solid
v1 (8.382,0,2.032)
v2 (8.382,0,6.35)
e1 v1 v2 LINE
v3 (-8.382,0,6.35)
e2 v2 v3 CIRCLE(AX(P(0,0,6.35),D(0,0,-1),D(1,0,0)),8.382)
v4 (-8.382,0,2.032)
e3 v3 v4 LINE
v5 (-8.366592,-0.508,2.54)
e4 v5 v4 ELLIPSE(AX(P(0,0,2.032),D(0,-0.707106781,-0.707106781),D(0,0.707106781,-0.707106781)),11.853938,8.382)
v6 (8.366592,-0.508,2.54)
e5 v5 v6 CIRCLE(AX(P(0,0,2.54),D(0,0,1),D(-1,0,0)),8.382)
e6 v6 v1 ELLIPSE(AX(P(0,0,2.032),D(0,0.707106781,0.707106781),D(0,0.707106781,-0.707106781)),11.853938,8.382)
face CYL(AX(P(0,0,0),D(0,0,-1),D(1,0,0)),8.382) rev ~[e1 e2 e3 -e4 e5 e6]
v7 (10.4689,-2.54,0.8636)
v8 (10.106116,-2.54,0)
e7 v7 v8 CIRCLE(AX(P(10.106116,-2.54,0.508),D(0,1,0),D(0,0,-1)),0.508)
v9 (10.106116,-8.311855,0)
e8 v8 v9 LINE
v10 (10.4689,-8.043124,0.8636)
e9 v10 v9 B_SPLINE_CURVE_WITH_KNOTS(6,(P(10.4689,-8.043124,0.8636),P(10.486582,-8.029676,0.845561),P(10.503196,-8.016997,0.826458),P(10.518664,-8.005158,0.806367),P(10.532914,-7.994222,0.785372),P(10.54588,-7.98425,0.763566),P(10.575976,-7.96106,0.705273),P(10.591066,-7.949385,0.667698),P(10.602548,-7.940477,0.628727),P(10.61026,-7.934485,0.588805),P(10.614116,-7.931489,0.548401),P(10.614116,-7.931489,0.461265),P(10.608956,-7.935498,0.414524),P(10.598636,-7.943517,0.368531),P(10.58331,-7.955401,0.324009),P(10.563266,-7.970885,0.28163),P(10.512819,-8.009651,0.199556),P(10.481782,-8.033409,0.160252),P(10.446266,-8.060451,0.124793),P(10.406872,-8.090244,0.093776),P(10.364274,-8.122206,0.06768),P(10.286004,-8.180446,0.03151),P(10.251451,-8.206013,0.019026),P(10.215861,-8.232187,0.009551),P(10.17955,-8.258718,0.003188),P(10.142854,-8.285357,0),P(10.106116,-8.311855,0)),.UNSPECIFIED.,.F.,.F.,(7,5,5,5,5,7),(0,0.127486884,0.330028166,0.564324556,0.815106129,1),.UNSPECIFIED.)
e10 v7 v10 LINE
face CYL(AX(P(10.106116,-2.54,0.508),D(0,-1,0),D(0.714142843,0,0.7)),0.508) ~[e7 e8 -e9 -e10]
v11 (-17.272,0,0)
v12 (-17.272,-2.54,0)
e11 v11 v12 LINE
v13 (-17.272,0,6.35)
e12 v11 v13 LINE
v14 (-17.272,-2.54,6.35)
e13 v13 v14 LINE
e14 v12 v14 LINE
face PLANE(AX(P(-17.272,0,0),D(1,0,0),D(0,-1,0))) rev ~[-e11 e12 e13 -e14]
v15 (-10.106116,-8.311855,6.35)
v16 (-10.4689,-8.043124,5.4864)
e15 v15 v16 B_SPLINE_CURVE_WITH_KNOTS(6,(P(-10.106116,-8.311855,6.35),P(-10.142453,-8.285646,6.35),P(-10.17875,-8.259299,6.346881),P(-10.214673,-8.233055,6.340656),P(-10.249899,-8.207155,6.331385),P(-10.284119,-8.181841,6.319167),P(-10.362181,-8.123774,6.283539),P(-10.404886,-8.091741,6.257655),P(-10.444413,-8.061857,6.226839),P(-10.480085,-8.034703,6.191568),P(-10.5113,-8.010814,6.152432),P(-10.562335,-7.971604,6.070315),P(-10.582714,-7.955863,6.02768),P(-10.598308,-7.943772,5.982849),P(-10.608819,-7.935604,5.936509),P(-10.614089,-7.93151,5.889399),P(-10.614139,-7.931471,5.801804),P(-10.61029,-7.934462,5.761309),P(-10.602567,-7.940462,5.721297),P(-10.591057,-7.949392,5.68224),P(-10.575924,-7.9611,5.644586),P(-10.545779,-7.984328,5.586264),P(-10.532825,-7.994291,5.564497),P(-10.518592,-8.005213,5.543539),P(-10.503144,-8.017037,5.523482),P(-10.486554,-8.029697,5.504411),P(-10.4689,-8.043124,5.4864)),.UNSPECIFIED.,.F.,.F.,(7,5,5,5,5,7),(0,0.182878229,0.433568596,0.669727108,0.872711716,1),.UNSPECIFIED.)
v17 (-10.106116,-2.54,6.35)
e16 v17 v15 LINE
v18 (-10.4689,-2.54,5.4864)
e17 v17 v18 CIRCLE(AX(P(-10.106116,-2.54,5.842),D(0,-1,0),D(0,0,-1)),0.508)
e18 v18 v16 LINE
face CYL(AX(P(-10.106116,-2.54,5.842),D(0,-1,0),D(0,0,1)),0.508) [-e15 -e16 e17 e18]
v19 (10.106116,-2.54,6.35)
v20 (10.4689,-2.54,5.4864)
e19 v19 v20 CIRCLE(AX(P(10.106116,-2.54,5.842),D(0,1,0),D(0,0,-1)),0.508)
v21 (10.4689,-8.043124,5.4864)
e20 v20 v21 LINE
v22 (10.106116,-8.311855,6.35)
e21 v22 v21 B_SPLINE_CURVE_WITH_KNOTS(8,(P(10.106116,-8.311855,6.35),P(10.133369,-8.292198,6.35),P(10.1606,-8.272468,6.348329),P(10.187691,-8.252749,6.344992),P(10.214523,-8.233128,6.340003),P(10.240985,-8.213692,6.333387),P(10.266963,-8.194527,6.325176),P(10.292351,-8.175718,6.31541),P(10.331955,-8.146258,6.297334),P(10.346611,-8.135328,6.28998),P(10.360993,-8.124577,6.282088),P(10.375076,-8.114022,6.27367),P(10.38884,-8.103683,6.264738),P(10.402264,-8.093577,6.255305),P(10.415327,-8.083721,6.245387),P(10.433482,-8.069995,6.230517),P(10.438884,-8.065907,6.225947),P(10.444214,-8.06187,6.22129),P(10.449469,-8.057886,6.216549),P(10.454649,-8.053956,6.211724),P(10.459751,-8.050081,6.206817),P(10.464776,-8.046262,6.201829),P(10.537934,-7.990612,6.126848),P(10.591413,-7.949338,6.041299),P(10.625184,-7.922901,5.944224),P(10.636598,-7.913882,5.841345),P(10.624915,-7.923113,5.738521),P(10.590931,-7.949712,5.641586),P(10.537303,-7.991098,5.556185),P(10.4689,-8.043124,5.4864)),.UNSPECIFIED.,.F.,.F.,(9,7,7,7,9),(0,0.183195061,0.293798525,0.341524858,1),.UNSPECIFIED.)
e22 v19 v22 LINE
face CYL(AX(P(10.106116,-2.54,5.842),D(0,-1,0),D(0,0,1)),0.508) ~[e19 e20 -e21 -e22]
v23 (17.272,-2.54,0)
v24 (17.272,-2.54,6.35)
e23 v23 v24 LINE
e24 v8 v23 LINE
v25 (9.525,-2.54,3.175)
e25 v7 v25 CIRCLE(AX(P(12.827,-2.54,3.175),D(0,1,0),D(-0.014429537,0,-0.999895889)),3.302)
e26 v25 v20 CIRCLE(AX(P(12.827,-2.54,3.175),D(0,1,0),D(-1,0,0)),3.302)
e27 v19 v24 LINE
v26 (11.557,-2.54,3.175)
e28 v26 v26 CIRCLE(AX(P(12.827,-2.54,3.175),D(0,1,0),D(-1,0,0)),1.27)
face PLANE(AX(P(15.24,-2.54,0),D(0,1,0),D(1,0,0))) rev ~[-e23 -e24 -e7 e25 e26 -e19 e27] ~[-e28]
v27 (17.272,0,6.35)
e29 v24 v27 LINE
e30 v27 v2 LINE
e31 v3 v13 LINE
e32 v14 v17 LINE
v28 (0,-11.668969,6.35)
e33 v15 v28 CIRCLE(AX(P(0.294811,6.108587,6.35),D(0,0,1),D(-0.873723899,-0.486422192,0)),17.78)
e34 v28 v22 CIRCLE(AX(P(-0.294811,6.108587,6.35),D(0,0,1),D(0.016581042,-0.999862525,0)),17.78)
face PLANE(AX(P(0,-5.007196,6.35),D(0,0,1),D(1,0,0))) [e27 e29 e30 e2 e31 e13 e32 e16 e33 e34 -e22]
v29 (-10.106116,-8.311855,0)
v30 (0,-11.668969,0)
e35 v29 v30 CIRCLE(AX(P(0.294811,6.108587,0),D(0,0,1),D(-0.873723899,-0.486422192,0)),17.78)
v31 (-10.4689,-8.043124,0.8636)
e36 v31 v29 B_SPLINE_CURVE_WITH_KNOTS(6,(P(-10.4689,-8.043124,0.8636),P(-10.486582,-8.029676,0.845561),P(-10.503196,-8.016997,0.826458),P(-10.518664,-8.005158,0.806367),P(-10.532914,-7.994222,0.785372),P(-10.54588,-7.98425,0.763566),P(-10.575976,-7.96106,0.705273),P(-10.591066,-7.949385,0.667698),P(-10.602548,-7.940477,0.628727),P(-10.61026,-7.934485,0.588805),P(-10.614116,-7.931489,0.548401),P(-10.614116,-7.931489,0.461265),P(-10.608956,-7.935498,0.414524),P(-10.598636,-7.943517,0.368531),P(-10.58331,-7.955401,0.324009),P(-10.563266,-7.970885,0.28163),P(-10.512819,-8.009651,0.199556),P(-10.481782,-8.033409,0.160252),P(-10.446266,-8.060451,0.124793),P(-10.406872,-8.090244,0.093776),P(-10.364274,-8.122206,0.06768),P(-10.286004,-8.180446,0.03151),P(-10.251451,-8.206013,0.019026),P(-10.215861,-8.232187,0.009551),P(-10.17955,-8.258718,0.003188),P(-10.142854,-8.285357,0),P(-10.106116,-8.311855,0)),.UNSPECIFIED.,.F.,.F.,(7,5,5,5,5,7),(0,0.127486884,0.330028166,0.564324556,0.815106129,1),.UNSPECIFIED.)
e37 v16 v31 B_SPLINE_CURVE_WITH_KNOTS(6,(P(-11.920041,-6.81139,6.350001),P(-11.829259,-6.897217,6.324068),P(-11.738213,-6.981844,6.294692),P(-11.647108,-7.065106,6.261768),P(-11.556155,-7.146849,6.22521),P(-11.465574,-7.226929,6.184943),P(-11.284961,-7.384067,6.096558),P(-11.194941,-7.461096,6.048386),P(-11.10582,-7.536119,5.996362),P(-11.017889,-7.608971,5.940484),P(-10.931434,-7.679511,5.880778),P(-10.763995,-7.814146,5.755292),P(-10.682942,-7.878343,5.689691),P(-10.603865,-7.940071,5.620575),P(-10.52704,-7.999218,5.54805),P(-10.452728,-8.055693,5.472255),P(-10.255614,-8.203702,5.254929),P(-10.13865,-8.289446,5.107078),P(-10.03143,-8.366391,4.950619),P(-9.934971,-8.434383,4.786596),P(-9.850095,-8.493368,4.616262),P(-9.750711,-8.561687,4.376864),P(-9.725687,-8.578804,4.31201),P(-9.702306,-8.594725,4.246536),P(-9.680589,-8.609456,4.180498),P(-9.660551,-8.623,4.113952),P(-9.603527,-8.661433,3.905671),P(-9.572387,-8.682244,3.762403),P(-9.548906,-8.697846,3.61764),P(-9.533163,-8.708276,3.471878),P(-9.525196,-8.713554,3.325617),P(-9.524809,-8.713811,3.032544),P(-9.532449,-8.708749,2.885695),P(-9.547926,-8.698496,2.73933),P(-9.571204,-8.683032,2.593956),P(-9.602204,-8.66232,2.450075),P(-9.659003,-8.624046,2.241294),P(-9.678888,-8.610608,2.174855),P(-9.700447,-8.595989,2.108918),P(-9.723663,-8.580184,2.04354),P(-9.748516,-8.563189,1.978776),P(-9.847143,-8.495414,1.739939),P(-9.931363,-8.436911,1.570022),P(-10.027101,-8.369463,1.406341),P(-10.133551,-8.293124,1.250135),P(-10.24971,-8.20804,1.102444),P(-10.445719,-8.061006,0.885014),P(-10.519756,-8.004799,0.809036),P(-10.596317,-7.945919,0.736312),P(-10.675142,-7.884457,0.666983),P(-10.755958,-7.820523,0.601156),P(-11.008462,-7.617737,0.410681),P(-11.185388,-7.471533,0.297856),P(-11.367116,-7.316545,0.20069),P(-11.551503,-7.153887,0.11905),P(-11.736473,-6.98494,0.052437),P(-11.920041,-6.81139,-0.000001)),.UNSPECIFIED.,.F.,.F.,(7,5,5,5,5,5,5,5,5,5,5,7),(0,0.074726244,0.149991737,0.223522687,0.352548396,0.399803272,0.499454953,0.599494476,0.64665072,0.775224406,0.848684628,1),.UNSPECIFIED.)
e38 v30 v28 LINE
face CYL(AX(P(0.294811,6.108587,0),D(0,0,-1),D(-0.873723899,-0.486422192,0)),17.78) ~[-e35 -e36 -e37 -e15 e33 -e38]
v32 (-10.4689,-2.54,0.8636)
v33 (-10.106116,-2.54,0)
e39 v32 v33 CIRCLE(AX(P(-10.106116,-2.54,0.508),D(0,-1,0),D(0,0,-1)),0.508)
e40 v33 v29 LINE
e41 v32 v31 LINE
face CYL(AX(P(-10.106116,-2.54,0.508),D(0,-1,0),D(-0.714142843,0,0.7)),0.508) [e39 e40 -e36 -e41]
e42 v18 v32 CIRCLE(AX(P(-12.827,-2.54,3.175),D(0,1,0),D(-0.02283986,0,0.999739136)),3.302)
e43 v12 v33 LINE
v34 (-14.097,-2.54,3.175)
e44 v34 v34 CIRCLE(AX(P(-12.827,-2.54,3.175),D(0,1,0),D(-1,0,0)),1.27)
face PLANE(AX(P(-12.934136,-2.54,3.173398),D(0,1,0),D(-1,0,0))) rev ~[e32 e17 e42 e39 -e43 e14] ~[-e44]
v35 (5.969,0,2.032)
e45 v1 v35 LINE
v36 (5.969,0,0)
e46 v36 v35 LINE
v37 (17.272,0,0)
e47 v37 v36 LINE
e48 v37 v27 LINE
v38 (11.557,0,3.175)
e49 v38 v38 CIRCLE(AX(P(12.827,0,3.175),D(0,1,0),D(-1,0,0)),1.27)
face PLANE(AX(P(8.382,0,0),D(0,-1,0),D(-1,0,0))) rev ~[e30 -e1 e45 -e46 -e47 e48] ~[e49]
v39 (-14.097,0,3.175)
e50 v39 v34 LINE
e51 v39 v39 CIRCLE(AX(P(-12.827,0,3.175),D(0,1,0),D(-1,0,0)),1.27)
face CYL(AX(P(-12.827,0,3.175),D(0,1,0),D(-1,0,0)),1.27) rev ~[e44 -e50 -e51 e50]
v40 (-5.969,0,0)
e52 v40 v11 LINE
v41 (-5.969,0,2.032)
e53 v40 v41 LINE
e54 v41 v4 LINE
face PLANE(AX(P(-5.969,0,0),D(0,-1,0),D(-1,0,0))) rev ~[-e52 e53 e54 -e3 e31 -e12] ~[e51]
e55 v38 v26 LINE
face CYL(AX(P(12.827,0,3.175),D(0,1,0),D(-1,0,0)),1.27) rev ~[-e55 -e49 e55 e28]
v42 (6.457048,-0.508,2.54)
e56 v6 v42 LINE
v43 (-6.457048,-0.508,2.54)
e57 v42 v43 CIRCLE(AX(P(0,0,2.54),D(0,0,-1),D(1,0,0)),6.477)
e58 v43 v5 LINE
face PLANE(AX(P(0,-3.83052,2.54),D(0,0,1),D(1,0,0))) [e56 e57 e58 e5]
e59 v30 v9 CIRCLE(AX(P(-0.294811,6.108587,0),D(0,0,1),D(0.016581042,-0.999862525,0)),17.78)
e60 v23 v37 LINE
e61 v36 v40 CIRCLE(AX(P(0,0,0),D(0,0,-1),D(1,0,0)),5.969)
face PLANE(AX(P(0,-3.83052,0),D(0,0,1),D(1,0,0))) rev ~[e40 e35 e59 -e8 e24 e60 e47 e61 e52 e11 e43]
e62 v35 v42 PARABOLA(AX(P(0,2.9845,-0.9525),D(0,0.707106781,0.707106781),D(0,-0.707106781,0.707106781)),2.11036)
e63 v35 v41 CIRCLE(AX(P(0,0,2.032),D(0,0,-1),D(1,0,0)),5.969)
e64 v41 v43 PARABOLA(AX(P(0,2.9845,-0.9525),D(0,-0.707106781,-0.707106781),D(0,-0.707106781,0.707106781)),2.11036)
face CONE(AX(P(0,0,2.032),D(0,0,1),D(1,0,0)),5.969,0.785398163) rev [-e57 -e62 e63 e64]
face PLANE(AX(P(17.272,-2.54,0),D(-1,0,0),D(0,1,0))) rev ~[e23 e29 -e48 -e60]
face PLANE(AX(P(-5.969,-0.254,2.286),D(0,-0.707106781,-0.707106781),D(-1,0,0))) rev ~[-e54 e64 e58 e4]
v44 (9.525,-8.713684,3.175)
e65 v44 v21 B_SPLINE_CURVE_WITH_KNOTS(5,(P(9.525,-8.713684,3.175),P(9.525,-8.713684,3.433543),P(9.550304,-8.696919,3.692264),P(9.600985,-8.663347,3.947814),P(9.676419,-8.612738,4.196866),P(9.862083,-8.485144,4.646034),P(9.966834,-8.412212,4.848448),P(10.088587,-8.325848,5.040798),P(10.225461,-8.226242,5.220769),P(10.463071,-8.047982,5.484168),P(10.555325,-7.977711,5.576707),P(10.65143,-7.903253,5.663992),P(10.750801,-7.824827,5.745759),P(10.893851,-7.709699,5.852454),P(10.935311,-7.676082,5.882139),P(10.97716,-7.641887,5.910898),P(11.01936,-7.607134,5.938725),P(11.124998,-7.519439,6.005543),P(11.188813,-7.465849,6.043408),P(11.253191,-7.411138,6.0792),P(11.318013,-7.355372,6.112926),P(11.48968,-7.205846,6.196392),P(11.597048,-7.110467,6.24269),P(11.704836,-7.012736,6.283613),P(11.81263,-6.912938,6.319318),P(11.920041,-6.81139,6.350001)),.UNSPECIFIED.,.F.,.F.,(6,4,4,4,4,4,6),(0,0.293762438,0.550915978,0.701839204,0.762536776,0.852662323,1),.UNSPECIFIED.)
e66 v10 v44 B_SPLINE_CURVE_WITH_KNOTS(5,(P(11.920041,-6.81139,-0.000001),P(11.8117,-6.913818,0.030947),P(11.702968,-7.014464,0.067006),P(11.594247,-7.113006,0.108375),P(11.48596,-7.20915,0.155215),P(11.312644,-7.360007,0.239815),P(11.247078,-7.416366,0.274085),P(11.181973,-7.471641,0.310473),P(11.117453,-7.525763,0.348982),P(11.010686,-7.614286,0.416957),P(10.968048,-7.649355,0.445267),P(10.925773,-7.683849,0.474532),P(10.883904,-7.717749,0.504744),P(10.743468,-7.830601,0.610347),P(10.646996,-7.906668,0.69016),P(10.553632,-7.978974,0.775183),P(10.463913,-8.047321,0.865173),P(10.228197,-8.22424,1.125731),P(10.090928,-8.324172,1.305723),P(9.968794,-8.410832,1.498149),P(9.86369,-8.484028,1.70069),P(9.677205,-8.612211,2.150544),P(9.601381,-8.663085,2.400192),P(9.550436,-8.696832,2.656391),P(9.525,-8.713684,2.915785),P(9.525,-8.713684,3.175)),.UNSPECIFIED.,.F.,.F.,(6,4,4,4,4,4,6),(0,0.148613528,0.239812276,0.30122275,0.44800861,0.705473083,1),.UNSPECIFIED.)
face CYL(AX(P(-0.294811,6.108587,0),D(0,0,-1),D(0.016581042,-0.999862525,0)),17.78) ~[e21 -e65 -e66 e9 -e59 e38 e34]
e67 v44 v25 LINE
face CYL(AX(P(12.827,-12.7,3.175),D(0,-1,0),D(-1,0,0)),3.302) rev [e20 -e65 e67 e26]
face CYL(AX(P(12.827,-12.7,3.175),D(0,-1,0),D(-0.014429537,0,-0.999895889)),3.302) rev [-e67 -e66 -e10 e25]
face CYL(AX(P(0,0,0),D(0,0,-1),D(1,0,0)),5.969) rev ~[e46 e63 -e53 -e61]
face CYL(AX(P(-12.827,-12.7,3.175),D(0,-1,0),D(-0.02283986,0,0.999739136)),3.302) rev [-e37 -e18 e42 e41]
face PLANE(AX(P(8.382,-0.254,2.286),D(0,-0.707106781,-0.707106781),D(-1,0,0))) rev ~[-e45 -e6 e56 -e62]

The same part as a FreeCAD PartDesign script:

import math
import FreeCAD as App
import Part
import Sketcher
from FreeCAD import Vector
Q = App.Units.Quantity


def edges_at(feature, points):
    """Names of the edges that pass closest to the given points."""
    edges = feature.Shape.Edges
    near = lambda p: min(range(len(edges)), key=lambda i: edges[i].distToShape(Part.Vertex(*p))[0])
    return sorted({f"Edge{near(p) + 1}" for p in points})

doc = App.newDocument("Part")
body = doc.addObject("PartDesign::Body", "Body")

# Sketch on XY plane
sketch1 = body.newObject("Sketcher::SketchObject", "Sketch")
sketch1.AttachmentSupport = (doc.getObject("XY_Plane"), [""])
sketch1.MapMode = "FlatFace"
sketch1.addGeometry(Part.ArcOfCircle(Part.Circle(Vector(0, 0, 0), Vector(0, 0, 1), 8.4), math.radians(180), math.radians(360)), False)
sketch1.addGeometry(Part.LineSegment(Vector(-8.4, 0, 0), Vector(-17.3, 0, 0)), False)
sketch1.addGeometry(Part.LineSegment(Vector(-17.3, 0, 0), Vector(-17.3, -2.5, 0)), False)
sketch1.addGeometry(Part.LineSegment(Vector(-17.3, -2.5, 0), Vector(-15.2, -2.5, 0)), False)
sketch1.addGeometry(Part.ArcOfCircle(Part.Circle(Vector(0.3, 6.1, 0), Vector(0, 0, 1), 17.8), math.radians(-151), math.radians(-91)), False)
sketch1.addGeometry(Part.ArcOfCircle(Part.Circle(Vector(-0.3, 6.1, 0), Vector(0, 0, 1), 17.8), math.radians(-89), math.radians(-29)), False)
sketch1.addGeometry(Part.LineSegment(Vector(15.2, -2.5, 0), Vector(17.3, -2.5, 0)), False)
sketch1.addGeometry(Part.LineSegment(Vector(17.3, -2.5, 0), Vector(17.3, 0, 0)), False)
sketch1.addGeometry(Part.LineSegment(Vector(17.3, 0, 0), Vector(8.4, 0, 0)), False)
sketch1.addConstraint(Sketcher.Constraint("Coincident", 0, 1, 1, 1))
sketch1.addConstraint(Sketcher.Constraint("Coincident", 1, 2, 2, 1))
sketch1.addConstraint(Sketcher.Constraint("Coincident", 2, 2, 3, 1))
sketch1.addConstraint(Sketcher.Constraint("Coincident", 3, 2, 4, 1))
sketch1.addConstraint(Sketcher.Constraint("Coincident", 4, 2, 5, 1))
sketch1.addConstraint(Sketcher.Constraint("Coincident", 5, 2, 6, 1))
sketch1.addConstraint(Sketcher.Constraint("Coincident", 6, 2, 7, 1))
sketch1.addConstraint(Sketcher.Constraint("Coincident", 7, 2, 8, 1))
sketch1.addConstraint(Sketcher.Constraint("Coincident", 8, 2, 0, 2))
sketch1.addConstraint(Sketcher.Constraint("Horizontal", 1))
sketch1.addConstraint(Sketcher.Constraint("Vertical", 2))
sketch1.addConstraint(Sketcher.Constraint("Horizontal", 3))
sketch1.addConstraint(Sketcher.Constraint("Horizontal", 6))
sketch1.addConstraint(Sketcher.Constraint("Vertical", 7))
sketch1.addConstraint(Sketcher.Constraint("Horizontal", 8))
sketch1.addConstraint(Sketcher.Constraint("Coincident", 0, 3, -1, 1))
sketch1.addConstraint(Sketcher.Constraint("Equal", 4, 5))
sketch1.addConstraint(Sketcher.Constraint("Symmetric", 1, 2, 7, 2, -1, 1))
sketch1.addConstraint(Sketcher.Constraint("Symmetric", 4, 3, 5, 3, -2))
sketch1.addConstraint(Sketcher.Constraint("PointOnObject", 0, 1, -1))
sketch1.addConstraint(Sketcher.Constraint("Horizontal", 3, 2, 5, 2))
sketch1.addConstraint(Sketcher.Constraint("Radius", 4, Q("0.7 in")))
sketch1.addConstraint(Sketcher.Constraint("Radius", 0, Q("0.33 in")))
sketch1.addConstraint(Sketcher.Constraint("DistanceY", 2, 2, 2, 1, Q("0.1 in")))
sketch1.addConstraint(Sketcher.Constraint("DistanceX", 1, 2, 1, 1, Q("0.35 in")))
sketch1.addConstraint(Sketcher.Constraint("DistanceX", 3, 1, 3, 2, Q("0.08 in")))
sketch1.addConstraint(Sketcher.Constraint("DistanceX", -1, 1, 4, 3, Q("0.294811 mm")))
pad1 = body.newObject("PartDesign::Pad", "Pad")
pad1.Profile = sketch1
pad1.Length = Q("0.25 in")

# Sketch on XY plane
sketch2 = body.newObject("Sketcher::SketchObject", "Sketch001")
sketch2.AttachmentSupport = (doc.getObject("XY_Plane"), [""])
sketch2.MapMode = "FlatFace"
sketch2.addGeometry(Part.ArcOfCircle(Part.Circle(Vector(0, 0, 0), Vector(0, 0, 1), 6), math.radians(180), math.radians(360)), False)
sketch2.addGeometry(Part.LineSegment(Vector(-6, 0, 0), Vector(-8.4, 0, 0)), False)
sketch2.addGeometry(Part.ArcOfCircle(Part.Circle(Vector(0, 0, 0), Vector(0, 0, 1), 8.4), math.radians(180), math.radians(360)), False)
sketch2.addGeometry(Part.LineSegment(Vector(8.4, 0, 0), Vector(6, 0, 0)), False)
sketch2.addConstraint(Sketcher.Constraint("Coincident", 0, 1, 1, 1))
sketch2.addConstraint(Sketcher.Constraint("Coincident", 1, 2, 2, 1))
sketch2.addConstraint(Sketcher.Constraint("Coincident", 2, 2, 3, 1))
sketch2.addConstraint(Sketcher.Constraint("Coincident", 3, 2, 0, 2))
sketch2.addConstraint(Sketcher.Constraint("Horizontal", 1))
sketch2.addConstraint(Sketcher.Constraint("Horizontal", 3))
sketch2.addConstraint(Sketcher.Constraint("Coincident", 0, 3, -1, 1))
sketch2.addConstraint(Sketcher.Constraint("Coincident", 2, 3, -1, 1))
sketch2.addConstraint(Sketcher.Constraint("PointOnObject", 0, 1, -1))
sketch2.addConstraint(Sketcher.Constraint("PointOnObject", 2, 2, -1))
sketch2.addConstraint(Sketcher.Constraint("Radius", 2, Q("0.33 in")))
sketch2.addConstraint(Sketcher.Constraint("Radius", 0, Q("0.235 in")))
pad2 = body.newObject("PartDesign::Pad", "Pad001")
pad2.Profile = sketch2
pad2.Length = Q("0.1 in")

# Sketch on XZ plane
sketch3 = body.newObject("Sketcher::SketchObject", "Sketch002")
sketch3.AttachmentSupport = (doc.getObject("XZ_Plane"), [""])
sketch3.MapMode = "FlatFace"
sketch3.addGeometry(Part.Circle(Vector(12.8, 3.2, 0), Vector(0, 0, 1), 1.3), False)
sketch3.addGeometry(Part.Circle(Vector(-12.8, 3.2, 0), Vector(0, 0, 1), 1.3), False)
sketch3.addConstraint(Sketcher.Constraint("Equal", 0, 1))
sketch3.addConstraint(Sketcher.Constraint("Symmetric", 0, 3, 1, 3, -2))
sketch3.addConstraint(Sketcher.Constraint("Diameter", 0, Q("0.1 in")))
sketch3.addConstraint(Sketcher.Constraint("DistanceX", 1, 3, 0, 3, Q("1.01 in")))
sketch3.addConstraint(Sketcher.Constraint("DistanceY", -1, 1, 0, 3, Q("0.125 in")))
pocket1 = body.newObject("PartDesign::Pocket", "Pocket")
pocket1.Profile = sketch3
pocket1.Length = Q("1 in")
pocket1.Reversed = True

# Sketch on XZ plane
sketch4 = body.newObject("Sketcher::SketchObject", "Sketch003")
sketch4.AttachmentSupport = (doc.getObject("XZ_Plane"), [""])
sketch4.MapMode = "FlatFace"
sketch4.AttachmentOffset = App.Placement(Vector(0, 0, 0.5 * 25.4), App.Rotation())
sketch4.addGeometry(Part.ArcOfCircle(Part.Circle(Vector(-12.8, 3.2, 0), Vector(0, 0, 1), 3.3), math.radians(-88), math.radians(91)), False)
sketch4.addGeometry(Part.LineSegment(Vector(-12.7, -0.1, 0), Vector(-20.6, -1.2, 0)), False)
sketch4.addGeometry(Part.LineSegment(Vector(-20.6, -1.2, 0), Vector(-20.6, 7.3, 0)), False)
sketch4.addGeometry(Part.LineSegment(Vector(-20.6, 7.3, 0), Vector(-12.9, 6.5, 0)), False)
sketch4.addGeometry(Part.ArcOfCircle(Part.Circle(Vector(12.8, 3.2, 0), Vector(0, 0, 1), 3.3), math.radians(180), math.radians(269)), False)
sketch4.addGeometry(Part.ArcOfCircle(Part.Circle(Vector(12.8, 3.2, 0), Vector(0, 0, 1), 3.3), math.radians(92), math.radians(180)), False)
sketch4.addGeometry(Part.LineSegment(Vector(12.7, 6.5, 0), Vector(20, 7.3, 0)), False)
sketch4.addGeometry(Part.LineSegment(Vector(20, 7.3, 0), Vector(20, -2, 0)), False)
sketch4.addGeometry(Part.LineSegment(Vector(20, -2, 0), Vector(12.8, -0.1, 0)), False)
sketch4.addConstraint(Sketcher.Constraint("Coincident", 0, 1, 1, 1))
sketch4.addConstraint(Sketcher.Constraint("Coincident", 1, 2, 2, 1))
sketch4.addConstraint(Sketcher.Constraint("Coincident", 2, 2, 3, 1))
sketch4.addConstraint(Sketcher.Constraint("Coincident", 3, 2, 0, 2))
sketch4.addConstraint(Sketcher.Constraint("Tangent", 4, 1, 5, 2))
sketch4.addConstraint(Sketcher.Constraint("Coincident", 5, 1, 6, 1))
sketch4.addConstraint(Sketcher.Constraint("Coincident", 6, 2, 7, 1))
sketch4.addConstraint(Sketcher.Constraint("Coincident", 7, 2, 8, 1))
sketch4.addConstraint(Sketcher.Constraint("Coincident", 8, 2, 4, 2))
sketch4.addConstraint(Sketcher.Constraint("Vertical", 2))
sketch4.addConstraint(Sketcher.Constraint("Vertical", 7))
sketch4.addConstraint(Sketcher.Constraint("Equal", 0, 4))
sketch4.addConstraint(Sketcher.Constraint("Equal", 4, 5))
sketch4.addConstraint(Sketcher.Constraint("Symmetric", 0, 3, 4, 3, -2))
sketch4.addConstraint(Sketcher.Constraint("Horizontal", 5, 3, 4, 1))
sketch4.addConstraint(Sketcher.Constraint("Radius", 0, Q("0.13 in")))
sketch4.addConstraint(Sketcher.Constraint("DistanceX", 0, 3, 4, 3, Q("1.01 in")))
sketch4.addConstraint(Sketcher.Constraint("DistanceY", -1, 1, 0, 3, Q("0.125 in")))
sketch4.addConstraint(Sketcher.Constraint("DistanceY", 5, 1, 6, 2, Q("0.0316999 in")))
sketch4.addConstraint(Sketcher.Constraint("DistanceY", 7, 2, 7, 1, Q("9.284649 mm")))
sketch4.addConstraint(Sketcher.Constraint("DistanceX", 3, 2, 0, 1, Q("0.175699 mm")))
sketch4.addConstraint(Sketcher.Constraint("DistanceX", 3, 2, 5, 1, Q("25.6182 mm")))
sketch4.addConstraint(Sketcher.Constraint("Distance", 3, Q("7.77953 mm")))
sketch4.addConstraint(Sketcher.Constraint("DistanceY", 2, 1, 2, 2, Q("8.435028 mm")))
sketch4.addConstraint(Sketcher.Constraint("DistanceY", 1, 2, -1, 1, Q("1.15501 mm")))
sketch4.addConstraint(Sketcher.Constraint("DistanceY", -1, 1, 3, 2, Q("6.476139 mm")))
sketch4.addConstraint(Sketcher.Constraint("DistanceX", -1, 1, 6, 2, Q("20.000352 mm")))
sketch4.addConstraint(Sketcher.Constraint("DistanceX", 5, 1, 8, 2, Q("0.06357 mm")))
pocket2 = body.newObject("PartDesign::Pocket", "Pocket001")
pocket2.Profile = sketch4
pocket2.Length = Q("0.4 in")
doc.recompute()

fillet = body.newObject("PartDesign::Fillet", "Fillet")
fillet.Base = (pocket2, edges_at(pocket2, [
    (-11.92, -4.676, 6.35),
    (-11.92, -4.676, 0),
    (11.92, -4.676, 6.35),
    (11.92, -4.676, 0),
]))
fillet.Radius = Q("0.02 in")
doc.recompute()

chamfer = body.newObject("PartDesign::Chamfer", "Chamfer")
chamfer.Base = (fillet, edges_at(fillet, [(0, -5.969, 2.54), (7.176, 0, 2.54), (-7.176, 0, 2.54)]))
chamfer.Size = Q("0.02 in")

doc.recompute()
